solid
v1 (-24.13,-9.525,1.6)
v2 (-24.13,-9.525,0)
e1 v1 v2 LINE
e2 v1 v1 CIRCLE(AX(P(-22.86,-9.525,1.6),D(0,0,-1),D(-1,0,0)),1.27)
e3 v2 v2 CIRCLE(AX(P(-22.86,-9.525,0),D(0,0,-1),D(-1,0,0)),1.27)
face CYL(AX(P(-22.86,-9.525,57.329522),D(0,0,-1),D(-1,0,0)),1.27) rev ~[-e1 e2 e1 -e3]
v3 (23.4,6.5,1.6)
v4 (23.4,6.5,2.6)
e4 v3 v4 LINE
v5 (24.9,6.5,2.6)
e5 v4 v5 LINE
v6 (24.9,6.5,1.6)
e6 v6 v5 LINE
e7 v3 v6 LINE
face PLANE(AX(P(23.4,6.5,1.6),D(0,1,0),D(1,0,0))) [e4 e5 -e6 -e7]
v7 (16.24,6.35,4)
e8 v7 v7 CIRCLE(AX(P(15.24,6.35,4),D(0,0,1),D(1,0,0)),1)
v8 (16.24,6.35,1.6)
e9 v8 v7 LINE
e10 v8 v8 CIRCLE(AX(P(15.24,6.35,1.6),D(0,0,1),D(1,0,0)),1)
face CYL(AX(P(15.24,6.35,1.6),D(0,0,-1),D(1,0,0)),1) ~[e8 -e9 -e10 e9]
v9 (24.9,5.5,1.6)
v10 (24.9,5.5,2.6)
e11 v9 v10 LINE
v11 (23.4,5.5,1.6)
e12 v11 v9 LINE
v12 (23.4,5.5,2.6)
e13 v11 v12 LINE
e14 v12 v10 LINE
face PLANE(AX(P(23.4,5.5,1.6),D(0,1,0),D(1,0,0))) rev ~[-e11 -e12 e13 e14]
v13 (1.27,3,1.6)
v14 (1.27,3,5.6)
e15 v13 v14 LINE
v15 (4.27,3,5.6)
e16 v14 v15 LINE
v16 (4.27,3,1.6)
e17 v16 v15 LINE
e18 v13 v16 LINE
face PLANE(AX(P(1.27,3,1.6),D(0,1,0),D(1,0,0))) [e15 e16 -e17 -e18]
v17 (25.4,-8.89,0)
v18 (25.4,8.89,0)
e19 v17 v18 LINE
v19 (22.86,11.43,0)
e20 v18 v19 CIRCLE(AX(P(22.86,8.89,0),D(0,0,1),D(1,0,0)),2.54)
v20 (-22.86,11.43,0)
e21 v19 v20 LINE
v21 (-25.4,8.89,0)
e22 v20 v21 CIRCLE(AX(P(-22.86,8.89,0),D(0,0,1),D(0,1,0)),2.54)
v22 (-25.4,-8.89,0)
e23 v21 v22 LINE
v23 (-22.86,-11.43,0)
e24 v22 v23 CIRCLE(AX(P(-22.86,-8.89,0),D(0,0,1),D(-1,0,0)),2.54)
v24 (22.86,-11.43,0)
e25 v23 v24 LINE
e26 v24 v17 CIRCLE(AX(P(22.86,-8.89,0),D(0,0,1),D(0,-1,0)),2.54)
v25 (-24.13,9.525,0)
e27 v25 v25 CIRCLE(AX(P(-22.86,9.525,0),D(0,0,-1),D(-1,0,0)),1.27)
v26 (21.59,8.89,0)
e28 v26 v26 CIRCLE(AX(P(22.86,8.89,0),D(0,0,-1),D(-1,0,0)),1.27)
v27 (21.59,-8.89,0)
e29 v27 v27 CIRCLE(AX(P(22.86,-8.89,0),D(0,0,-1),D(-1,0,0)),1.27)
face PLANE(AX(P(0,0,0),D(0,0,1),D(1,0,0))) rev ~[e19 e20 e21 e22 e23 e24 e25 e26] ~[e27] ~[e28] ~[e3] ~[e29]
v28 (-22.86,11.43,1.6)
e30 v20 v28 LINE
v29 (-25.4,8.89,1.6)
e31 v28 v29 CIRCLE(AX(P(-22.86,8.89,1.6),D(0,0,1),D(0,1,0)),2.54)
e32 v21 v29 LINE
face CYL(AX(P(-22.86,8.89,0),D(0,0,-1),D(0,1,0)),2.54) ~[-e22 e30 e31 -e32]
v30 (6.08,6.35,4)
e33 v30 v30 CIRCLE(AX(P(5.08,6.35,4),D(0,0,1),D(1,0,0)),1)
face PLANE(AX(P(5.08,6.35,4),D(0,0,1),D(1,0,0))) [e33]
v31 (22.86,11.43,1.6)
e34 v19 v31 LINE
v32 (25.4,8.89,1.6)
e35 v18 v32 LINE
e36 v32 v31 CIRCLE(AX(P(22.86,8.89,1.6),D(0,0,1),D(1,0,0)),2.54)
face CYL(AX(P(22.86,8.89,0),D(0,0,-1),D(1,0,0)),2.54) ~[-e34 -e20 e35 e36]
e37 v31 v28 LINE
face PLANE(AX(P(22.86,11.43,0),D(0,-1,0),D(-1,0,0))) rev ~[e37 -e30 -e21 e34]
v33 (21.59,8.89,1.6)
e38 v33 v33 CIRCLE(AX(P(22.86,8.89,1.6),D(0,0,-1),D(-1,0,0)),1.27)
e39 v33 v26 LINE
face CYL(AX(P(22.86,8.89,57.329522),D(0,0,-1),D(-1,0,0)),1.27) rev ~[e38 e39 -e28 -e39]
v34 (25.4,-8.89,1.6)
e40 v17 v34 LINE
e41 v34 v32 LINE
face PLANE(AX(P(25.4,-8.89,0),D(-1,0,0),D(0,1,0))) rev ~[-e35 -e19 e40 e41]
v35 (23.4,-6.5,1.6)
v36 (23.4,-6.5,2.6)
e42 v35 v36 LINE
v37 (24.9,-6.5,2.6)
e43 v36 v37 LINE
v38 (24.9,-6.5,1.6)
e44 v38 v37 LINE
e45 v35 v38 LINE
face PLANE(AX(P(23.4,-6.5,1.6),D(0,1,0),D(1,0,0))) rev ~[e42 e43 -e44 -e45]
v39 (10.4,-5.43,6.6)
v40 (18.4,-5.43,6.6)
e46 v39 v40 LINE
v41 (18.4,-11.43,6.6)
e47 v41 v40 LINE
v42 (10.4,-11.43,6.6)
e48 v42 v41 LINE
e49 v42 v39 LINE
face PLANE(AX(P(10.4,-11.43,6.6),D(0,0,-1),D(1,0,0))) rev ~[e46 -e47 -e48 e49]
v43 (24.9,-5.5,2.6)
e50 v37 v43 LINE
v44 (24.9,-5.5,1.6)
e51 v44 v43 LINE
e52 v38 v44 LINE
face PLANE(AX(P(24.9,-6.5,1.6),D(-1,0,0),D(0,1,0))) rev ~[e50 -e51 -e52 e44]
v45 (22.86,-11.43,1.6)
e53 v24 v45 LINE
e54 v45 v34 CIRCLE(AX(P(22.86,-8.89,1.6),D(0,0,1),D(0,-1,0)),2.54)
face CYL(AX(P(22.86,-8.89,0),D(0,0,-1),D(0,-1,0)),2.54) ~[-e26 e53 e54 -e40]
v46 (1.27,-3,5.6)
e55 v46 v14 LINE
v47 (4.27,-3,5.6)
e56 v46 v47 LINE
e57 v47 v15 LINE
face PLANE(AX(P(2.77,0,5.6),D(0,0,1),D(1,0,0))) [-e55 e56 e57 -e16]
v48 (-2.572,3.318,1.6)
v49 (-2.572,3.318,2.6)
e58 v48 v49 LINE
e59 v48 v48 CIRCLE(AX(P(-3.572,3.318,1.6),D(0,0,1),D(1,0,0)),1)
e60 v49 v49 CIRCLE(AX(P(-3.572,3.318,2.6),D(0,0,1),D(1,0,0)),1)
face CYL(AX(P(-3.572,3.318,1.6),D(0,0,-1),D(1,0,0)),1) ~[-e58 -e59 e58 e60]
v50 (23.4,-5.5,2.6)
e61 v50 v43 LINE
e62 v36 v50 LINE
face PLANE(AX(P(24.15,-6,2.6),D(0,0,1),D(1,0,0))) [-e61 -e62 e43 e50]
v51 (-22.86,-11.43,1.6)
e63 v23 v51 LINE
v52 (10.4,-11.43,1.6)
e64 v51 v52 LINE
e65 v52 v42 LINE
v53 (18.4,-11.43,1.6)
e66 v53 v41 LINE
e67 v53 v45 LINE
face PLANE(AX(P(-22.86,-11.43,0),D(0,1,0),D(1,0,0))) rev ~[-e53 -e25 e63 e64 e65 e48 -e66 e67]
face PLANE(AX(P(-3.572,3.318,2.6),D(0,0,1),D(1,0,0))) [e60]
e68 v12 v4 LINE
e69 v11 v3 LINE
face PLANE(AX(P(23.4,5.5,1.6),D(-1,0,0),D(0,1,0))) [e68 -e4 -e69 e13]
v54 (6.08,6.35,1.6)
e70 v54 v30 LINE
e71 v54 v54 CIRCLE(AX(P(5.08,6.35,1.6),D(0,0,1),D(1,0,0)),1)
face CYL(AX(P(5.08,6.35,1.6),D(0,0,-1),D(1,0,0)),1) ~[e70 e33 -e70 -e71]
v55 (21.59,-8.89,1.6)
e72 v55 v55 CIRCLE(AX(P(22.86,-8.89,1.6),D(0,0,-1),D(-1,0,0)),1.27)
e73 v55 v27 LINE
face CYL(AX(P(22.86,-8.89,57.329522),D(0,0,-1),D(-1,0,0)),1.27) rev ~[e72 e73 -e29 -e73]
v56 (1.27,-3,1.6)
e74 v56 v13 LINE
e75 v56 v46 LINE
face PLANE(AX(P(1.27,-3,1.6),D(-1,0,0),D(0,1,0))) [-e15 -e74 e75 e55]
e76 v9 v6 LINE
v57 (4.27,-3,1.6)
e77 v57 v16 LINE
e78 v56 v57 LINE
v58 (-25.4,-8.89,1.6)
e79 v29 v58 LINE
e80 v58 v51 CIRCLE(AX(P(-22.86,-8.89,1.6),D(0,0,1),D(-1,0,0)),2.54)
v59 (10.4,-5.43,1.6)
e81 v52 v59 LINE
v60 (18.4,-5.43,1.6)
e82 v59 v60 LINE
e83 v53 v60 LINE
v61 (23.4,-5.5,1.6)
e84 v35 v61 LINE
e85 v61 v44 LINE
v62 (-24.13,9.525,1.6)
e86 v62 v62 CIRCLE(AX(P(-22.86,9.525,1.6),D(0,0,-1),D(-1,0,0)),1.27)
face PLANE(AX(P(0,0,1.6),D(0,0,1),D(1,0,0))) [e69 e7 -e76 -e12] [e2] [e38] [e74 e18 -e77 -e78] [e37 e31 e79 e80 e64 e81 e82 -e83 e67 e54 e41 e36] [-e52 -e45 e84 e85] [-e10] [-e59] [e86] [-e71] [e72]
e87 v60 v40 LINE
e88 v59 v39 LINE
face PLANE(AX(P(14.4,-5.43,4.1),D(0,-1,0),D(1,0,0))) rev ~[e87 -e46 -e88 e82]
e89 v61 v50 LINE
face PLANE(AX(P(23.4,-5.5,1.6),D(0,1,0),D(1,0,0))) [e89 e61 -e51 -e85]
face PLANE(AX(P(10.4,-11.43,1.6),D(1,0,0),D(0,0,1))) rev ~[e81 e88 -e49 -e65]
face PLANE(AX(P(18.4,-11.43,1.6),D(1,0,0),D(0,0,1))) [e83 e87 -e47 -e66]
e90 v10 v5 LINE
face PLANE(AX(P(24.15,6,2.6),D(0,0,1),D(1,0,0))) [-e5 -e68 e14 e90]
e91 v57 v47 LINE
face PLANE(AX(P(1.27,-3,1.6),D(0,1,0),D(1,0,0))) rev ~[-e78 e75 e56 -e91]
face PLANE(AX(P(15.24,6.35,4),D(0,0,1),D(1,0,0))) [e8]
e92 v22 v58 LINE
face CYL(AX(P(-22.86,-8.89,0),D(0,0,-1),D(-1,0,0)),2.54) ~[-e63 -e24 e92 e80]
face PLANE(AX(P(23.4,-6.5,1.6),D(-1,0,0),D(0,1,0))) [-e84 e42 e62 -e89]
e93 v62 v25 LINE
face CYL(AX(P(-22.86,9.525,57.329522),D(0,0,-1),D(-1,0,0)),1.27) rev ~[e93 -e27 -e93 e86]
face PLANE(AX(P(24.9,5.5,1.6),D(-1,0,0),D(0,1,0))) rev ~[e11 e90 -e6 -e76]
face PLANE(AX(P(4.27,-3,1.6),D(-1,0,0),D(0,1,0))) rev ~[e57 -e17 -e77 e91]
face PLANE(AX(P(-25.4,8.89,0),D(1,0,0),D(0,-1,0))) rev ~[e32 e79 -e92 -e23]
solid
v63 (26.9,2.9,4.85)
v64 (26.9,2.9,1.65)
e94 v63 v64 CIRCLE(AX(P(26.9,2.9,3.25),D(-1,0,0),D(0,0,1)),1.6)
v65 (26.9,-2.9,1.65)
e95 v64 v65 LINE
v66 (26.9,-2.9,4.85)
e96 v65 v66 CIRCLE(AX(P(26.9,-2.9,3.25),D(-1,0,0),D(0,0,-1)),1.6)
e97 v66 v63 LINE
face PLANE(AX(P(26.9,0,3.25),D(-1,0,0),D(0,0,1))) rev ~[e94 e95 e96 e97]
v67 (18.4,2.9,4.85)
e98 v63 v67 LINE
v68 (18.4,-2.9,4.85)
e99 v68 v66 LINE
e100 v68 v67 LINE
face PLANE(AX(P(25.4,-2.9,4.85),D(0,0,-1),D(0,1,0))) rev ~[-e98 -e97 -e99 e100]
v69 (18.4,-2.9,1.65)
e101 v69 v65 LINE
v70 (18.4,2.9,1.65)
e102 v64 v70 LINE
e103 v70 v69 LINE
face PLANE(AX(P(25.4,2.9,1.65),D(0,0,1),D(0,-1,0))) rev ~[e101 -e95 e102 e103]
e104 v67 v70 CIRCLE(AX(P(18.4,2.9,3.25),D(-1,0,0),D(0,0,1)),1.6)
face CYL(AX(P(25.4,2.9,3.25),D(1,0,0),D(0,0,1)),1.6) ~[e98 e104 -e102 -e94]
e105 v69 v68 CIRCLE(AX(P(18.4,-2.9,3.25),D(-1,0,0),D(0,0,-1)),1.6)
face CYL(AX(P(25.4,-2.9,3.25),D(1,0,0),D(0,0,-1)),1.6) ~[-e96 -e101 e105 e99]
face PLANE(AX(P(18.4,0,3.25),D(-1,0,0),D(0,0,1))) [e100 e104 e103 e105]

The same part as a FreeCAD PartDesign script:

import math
import FreeCAD as App
import Part
import Sketcher
from FreeCAD import Vector

doc = App.newDocument("Part")
body = doc.addObject("PartDesign::Body", "Body")

# Sketch on XY plane
sketch1 = doc.addObject("Sketcher::SketchObject", "Sketch")
body.addObject(sketch1)
sketch1.AttachmentSupport = (doc.XY_Plane, [""])
sketch1.MapMode = "FlatFace"
sketch1.addGeometry([
    Part.LineSegment(Vector(-22.86, -11.43, 0), Vector(22.86, -11.43, 0)),  # 0
    Part.ArcOfCircle(Part.Circle(Vector(22.86, -8.89, 0), Vector(0, 0, 1), 2.54), math.radians(-90), math.radians(0)),  # 1
    Part.LineSegment(Vector(25.4, -8.89, 0), Vector(25.4, 8.89, 0)),  # 2
    Part.ArcOfCircle(Part.Circle(Vector(22.86, 8.89, 0), Vector(0, 0, 1), 2.54), math.radians(0), math.radians(90)),  # 3
    Part.LineSegment(Vector(22.86, 11.43, 0), Vector(-22.86, 11.43, 0)),  # 4
    Part.ArcOfCircle(Part.Circle(Vector(-22.86, 8.89, 0), Vector(0, 0, 1), 2.54), math.radians(90), math.radians(180)),  # 5
    Part.LineSegment(Vector(-25.4, 8.89, 0), Vector(-25.4, -8.89, 0)),  # 6
    Part.ArcOfCircle(Part.Circle(Vector(-22.86, -8.89, 0), Vector(0, 0, 1), 2.54), math.radians(-180), math.radians(-90)),  # 7
], False)
sketch1.addConstraint([
    Sketcher.Constraint("Tangent", 0, 2, 1, 1),
    Sketcher.Constraint("Tangent", 1, 2, 2, 1),
    Sketcher.Constraint("Tangent", 2, 2, 3, 1),
    Sketcher.Constraint("Tangent", 3, 2, 4, 1),
    Sketcher.Constraint("Tangent", 4, 2, 5, 1),
    Sketcher.Constraint("Tangent", 5, 2, 6, 1),
    Sketcher.Constraint("Tangent", 6, 2, 7, 1),
    Sketcher.Constraint("Tangent", 7, 2, 0, 1),
    Sketcher.Constraint("Horizontal", 0),
    Sketcher.Constraint("Vertical", 2),
    Sketcher.Constraint("Horizontal", 4),
    Sketcher.Constraint("Vertical", 6),
    Sketcher.Constraint("Equal", 1, 3),
    Sketcher.Constraint("Equal", 3, 5),
    Sketcher.Constraint("Equal", 5, 7),
    Sketcher.Constraint("Symmetric", 1, 3, 5, 3, -1, 1),
    Sketcher.Constraint("Radius", 1, 2.54),
    Sketcher.Constraint("DistanceX", 0, 1, 0, 2, 45.72),
    Sketcher.Constraint("DistanceY", 2, 1, 2, 2, 17.78),
])
pad1 = doc.addObject("PartDesign::Pad", "Pad")
body.addObject(pad1)
pad1.Profile = sketch1
pad1.Length = 1.6

# Sketch on XY plane
sketch2 = doc.addObject("Sketcher::SketchObject", "Sketch001")
body.addObject(sketch2)
sketch2.AttachmentSupport = (doc.XY_Plane, [""])
sketch2.MapMode = "FlatFace"
sketch2.AttachmentOffset = App.Placement(Vector(0, 0, 1.6), App.Rotation())
sketch2.addGeometry([
    Part.Circle(Vector(-22.86, 9.525, 0), Vector(0, 0, 1), 1.27),
    Part.Circle(Vector(-22.86, -9.525, 0), Vector(0, 0, 1), 1.27),
    Part.Circle(Vector(22.86, 8.89, 0), Vector(0, 0, 1), 1.27),
    Part.Circle(Vector(22.86, -8.89, 0), Vector(0, 0, 1), 1.27),
], False)
sketch2.addConstraint([
    Sketcher.Constraint("Equal", 0, 1),
    Sketcher.Constraint("Equal", 1, 2),
    Sketcher.Constraint("Equal", 2, 3),
    Sketcher.Constraint("Symmetric", 0, 3, 1, 3, -1),
    Sketcher.Constraint("Symmetric", 2, 3, 3, 3, -1),
    Sketcher.Constraint("Diameter", 0, 2.54),
    Sketcher.Constraint("DistanceX", 0, 3, -1, 1, 22.86),
    Sketcher.Constraint("DistanceX", -1, 1, 2, 3, 22.86),
    Sketcher.Constraint("DistanceY", -1, 1, 2, 3, 8.89),
    Sketcher.Constraint("DistanceY", 1, 3, 0, 3, 19.05),
])
doc.recompute()
hole = doc.addObject("PartDesign::Hole", "Hole")
body.addObject(hole)
hole.Profile = sketch2
hole.ThreadType = "None"
hole.Diameter = 2.54
hole.DepthType = "ThroughAll"

# Sketch on XZ plane
sketch3 = doc.addObject("Sketcher::SketchObject", "Sketch002")
body.addObject(sketch3)
sketch3.AttachmentSupport = (doc.XZ_Plane, [""])
sketch3.MapMode = "FlatFace"
sketch3.AttachmentOffset = App.Placement(Vector(0, 0, 11.43), App.Rotation())
sketch3.addGeometry([
    Part.LineSegment(Vector(10.4, 6.6, 0), Vector(10.4, 1.6, 0)),
    Part.LineSegment(Vector(10.4, 1.6, 0), Vector(18.4, 1.6, 0)),
    Part.LineSegment(Vector(18.4, 1.6, 0), Vector(18.4, 6.6, 0)),
    Part.LineSegment(Vector(18.4, 6.6, 0), Vector(10.4, 6.6, 0)),
], False)
sketch3.addConstraint([
    Sketcher.Constraint("Coincident", 0, 2, 1, 1),
    Sketcher.Constraint("Coincident", 1, 2, 2, 1),
    Sketcher.Constraint("Coincident", 2, 2, 3, 1),
    Sketcher.Constraint("Coincident", 3, 2, 0, 1),
    Sketcher.Constraint("Vertical", 0),
    Sketcher.Constraint("Horizontal", 1),
    Sketcher.Constraint("Vertical", 2),
    Sketcher.Constraint("Horizontal", 3),
    Sketcher.Constraint("DistanceX", 1, 1, 1, 2, 8.0),
    Sketcher.Constraint("DistanceY", 0, 2, 0, 1, 5.0),
    Sketcher.Constraint("DistanceX", -1, 1, 0, 2, 10.4),
    Sketcher.Constraint("DistanceY", -1, 1, 0, 2, 1.6),
])
pad2 = doc.addObject("PartDesign::Pad", "Pad001")
body.addObject(pad2)
pad2.Profile = sketch3
pad2.Length = 6
pad2.Reversed = True

# Sketch on XY plane
sketch4 = doc.addObject("Sketcher::SketchObject", "Sketch003")
body.addObject(sketch4)
sketch4.AttachmentSupport = (doc.XY_Plane, [""])
sketch4.MapMode = "FlatFace"
sketch4.AttachmentOffset = App.Placement(Vector(0, 0, 1.6), App.Rotation())
sketch4.addGeometry([
    Part.Circle(Vector(15.24, 6.35, 0), Vector(0, 0, 1), 1),
    Part.Circle(Vector(5.08, 6.35, 0), Vector(0, 0, 1), 1),
], False)
sketch4.addConstraint([
    Sketcher.Constraint("Equal", 0, 1),
    Sketcher.Constraint("Horizontal", 0, 3, 1, 3),
    Sketcher.Constraint("Diameter", 0, 2.0),
    Sketcher.Constraint("DistanceX", -1, 1, 0, 3, 15.24),
    Sketcher.Constraint("DistanceY", -1, 1, 0, 3, 6.35),
    Sketcher.Constraint("DistanceX", -1, 1, 1, 3, 5.08),
])
pad3 = doc.addObject("PartDesign::Pad", "Pad002")
body.addObject(pad3)
pad3.Profile = sketch4
pad3.Length = 2.4

# Sketch on XY plane
sketch5 = doc.addObject("Sketcher::SketchObject", "Sketch004")
body.addObject(sketch5)
sketch5.AttachmentSupport = (doc.XY_Plane, [""])
sketch5.MapMode = "FlatFace"
sketch5.AttachmentOffset = App.Placement(Vector(0, 0, 1.6), App.Rotation())
sketch5.addGeometry([
    Part.LineSegment(Vector(1.27, 3, 0), Vector(1.27, -3, 0)),
    Part.LineSegment(Vector(1.27, -3, 0), Vector(4.27, -3, 0)),
    Part.LineSegment(Vector(4.27, -3, 0), Vector(4.27, 3, 0)),
    Part.LineSegment(Vector(4.27, 3, 0), Vector(1.27, 3, 0)),
], False)
sketch5.addConstraint([
    Sketcher.Constraint("Coincident", 0, 2, 1, 1),
    Sketcher.Constraint("Coincident", 1, 2, 2, 1),
    Sketcher.Constraint("Coincident", 2, 2, 3, 1),
    Sketcher.Constraint("Coincident", 3, 2, 0, 1),
    Sketcher.Constraint("Vertical", 0),
    Sketcher.Constraint("Horizontal", 1),
    Sketcher.Constraint("Vertical", 2),
    Sketcher.Constraint("Horizontal", 3),
    Sketcher.Constraint("DistanceX", 1, 1, 1, 2, 3.0),
    Sketcher.Constraint("DistanceY", 0, 2, 0, 1, 6.0),
    Sketcher.Constraint("DistanceY", 0, 2, -1, 1, 3.0),
    Sketcher.Constraint("DistanceX", -1, 1, 0, 2, 1.27),
])
pad4 = doc.addObject("PartDesign::Pad", "Pad003")
body.addObject(pad4)
pad4.Profile = sketch5
pad4.Length = 4

# Sketch on XY plane
sketch6 = doc.addObject("Sketcher::SketchObject", "Sketch005")
body.addObject(sketch6)
sketch6.AttachmentSupport = (doc.XY_Plane, [""])
sketch6.MapMode = "FlatFace"
sketch6.AttachmentOffset = App.Placement(Vector(0, 0, 1.6), App.Rotation())
sketch6.addGeometry(Part.Circle(Vector(-3.572, 3.318, 0), Vector(0, 0, 1), 1), False)
sketch6.addConstraint([
    Sketcher.Constraint("Diameter", 0, 2.0),
    Sketcher.Constraint("DistanceX", 0, 3, -1, 1, 3.572),
    Sketcher.Constraint("DistanceY", -1, 1, 0, 3, 3.318),
])
pad5 = doc.addObject("PartDesign::Pad", "Pad004")
body.addObject(pad5)
pad5.Profile = sketch6
pad5.Length = 1

# Sketch on XY plane
sketch7 = doc.addObject("Sketcher::SketchObject", "Sketch006")
body.addObject(sketch7)
sketch7.AttachmentSupport = (doc.XY_Plane, [""])
sketch7.MapMode = "FlatFace"
sketch7.AttachmentOffset = App.Placement(Vector(0, 0, 1.6), App.Rotation())
sketch7.addGeometry([
    Part.LineSegment(Vector(23.4, 6.5, 0), Vector(23.4, 5.5, 0)),  # 0
    Part.LineSegment(Vector(23.4, 5.5, 0), Vector(24.9, 5.5, 0)),  # 1
    Part.LineSegment(Vector(24.9, 5.5, 0), Vector(24.9, 6.5, 0)),  # 2
    Part.LineSegment(Vector(24.9, 6.5, 0), Vector(23.4, 6.5, 0)),  # 3
    Part.LineSegment(Vector(23.4, -5.5, 0), Vector(23.4, -6.5, 0)),  # 4
    Part.LineSegment(Vector(23.4, -6.5, 0), Vector(24.9, -6.5, 0)),  # 5
    Part.LineSegment(Vector(24.9, -6.5, 0), Vector(24.9, -5.5, 0)),  # 6
    Part.LineSegment(Vector(24.9, -5.5, 0), Vector(23.4, -5.5, 0)),  # 7
], False)
sketch7.addConstraint([
    Sketcher.Constraint("Coincident", 0, 2, 1, 1),
    Sketcher.Constraint("Coincident", 1, 2, 2, 1),
    Sketcher.Constraint("Coincident", 2, 2, 3, 1),
    Sketcher.Constraint("Coincident", 3, 2, 0, 1),
    Sketcher.Constraint("Coincident", 4, 2, 5, 1),
    Sketcher.Constraint("Coincident", 5, 2, 6, 1),
    Sketcher.Constraint("Coincident", 6, 2, 7, 1),
    Sketcher.Constraint("Coincident", 7, 2, 4, 1),
    Sketcher.Constraint("Vertical", 0),
    Sketcher.Constraint("Horizontal", 1),
    Sketcher.Constraint("Vertical", 2),
    Sketcher.Constraint("Horizontal", 3),
    Sketcher.Constraint("Vertical", 4),
    Sketcher.Constraint("Horizontal", 5),
    Sketcher.Constraint("Vertical", 6),
    Sketcher.Constraint("Horizontal", 7),
    Sketcher.Constraint("Symmetric", 3, 2, 4, 2, -1),
    Sketcher.Constraint("Symmetric", 1, 2, 6, 2, -1),
    Sketcher.Constraint("DistanceY", 0, 2, 0, 1, 1.0),
    Sketcher.Constraint("DistanceX", 1, 1, 1, 2, 1.5),
    Sketcher.Constraint("DistanceY", 4, 2, 0, 2, 12.0),
    Sketcher.Constraint("DistanceX", -1, 1, 0, 2, 23.4),
])
pad6 = doc.addObject("PartDesign::Pad", "Pad005")
body.addObject(pad6)
pad6.Profile = sketch7
pad6.Length = 1
body2 = doc.addObject("PartDesign::Body", "Body001")

# Sketch on YZ plane
sketch8 = doc.addObject("Sketcher::SketchObject", "Sketch007")
body2.addObject(sketch8)
sketch8.AttachmentSupport = (doc.getObject("YZ_Plane001"), [""])
sketch8.MapMode = "FlatFace"
sketch8.AttachmentOffset = App.Placement(Vector(0, 0, 25.4), App.Rotation())
sketch8.addGeometry([
    Part.LineSegment(Vector(2.9, 4.85, 0), Vector(-2.9, 4.85, 0)),
    Part.ArcOfCircle(Part.Circle(Vector(-2.9, 3.25, 0), Vector(0, 0, 1), 1.6), math.radians(90), math.radians(270)),
    Part.LineSegment(Vector(-2.9, 1.65, 0), Vector(2.9, 1.65, 0)),
    Part.ArcOfCircle(Part.Circle(Vector(2.9, 3.25, 0), Vector(0, 0, 1), 1.6), math.radians(-90), math.radians(90)),
], False)
sketch8.addConstraint([
    Sketcher.Constraint("Tangent", 0, 2, 1, 1),
    Sketcher.Constraint("Tangent", 1, 2, 2, 1),
    Sketcher.Constraint("Tangent", 2, 2, 3, 1),
    Sketcher.Constraint("Tangent", 3, 2, 0, 1),
    Sketcher.Constraint("Horizontal", 0),
    Sketcher.Constraint("Horizontal", 2),
    Sketcher.Constraint("Radius", 1, 1.6),
    Sketcher.Constraint("DistanceX", 0, 2, 0, 1, 5.8),
    Sketcher.Constraint("DistanceX", 1, 3, -1, 1, 2.9),
    Sketcher.Constraint("DistanceY", -1, 1, 1, 3, 3.25),
])
pad7 = doc.addObject("PartDesign::Pad", "Pad006")
body2.addObject(pad7)
pad7.Profile = sketch8
pad7.Type = "TwoLengths"
pad7.Length = 1.5
pad7.Length2 = 7

doc.recompute()
